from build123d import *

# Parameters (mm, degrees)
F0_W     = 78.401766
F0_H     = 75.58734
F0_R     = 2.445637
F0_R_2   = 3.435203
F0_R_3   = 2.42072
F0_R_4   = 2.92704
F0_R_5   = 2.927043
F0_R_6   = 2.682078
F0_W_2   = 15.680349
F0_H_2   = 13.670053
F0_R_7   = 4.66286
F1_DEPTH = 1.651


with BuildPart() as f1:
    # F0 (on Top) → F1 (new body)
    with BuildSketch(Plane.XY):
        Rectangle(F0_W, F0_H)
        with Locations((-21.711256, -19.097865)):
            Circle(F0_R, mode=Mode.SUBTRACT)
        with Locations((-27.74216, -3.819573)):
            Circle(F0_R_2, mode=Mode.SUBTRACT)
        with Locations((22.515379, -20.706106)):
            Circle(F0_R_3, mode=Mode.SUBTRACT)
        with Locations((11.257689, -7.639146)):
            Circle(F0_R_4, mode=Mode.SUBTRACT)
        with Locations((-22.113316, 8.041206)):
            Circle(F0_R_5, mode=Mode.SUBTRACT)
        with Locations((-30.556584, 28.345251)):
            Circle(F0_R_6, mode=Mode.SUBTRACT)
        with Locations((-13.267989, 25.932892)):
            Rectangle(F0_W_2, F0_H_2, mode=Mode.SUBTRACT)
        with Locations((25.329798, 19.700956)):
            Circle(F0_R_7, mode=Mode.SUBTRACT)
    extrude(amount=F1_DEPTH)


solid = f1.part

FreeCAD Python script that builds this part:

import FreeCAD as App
import Part
import Sketcher

V = App.Vector
Q = App.Units.Quantity

doc = App.newDocument("Part")
params = doc.addObject("Spreadsheet::Sheet", "Params")
for row, (alias, value) in enumerate([
    ("pad1_length", "0.065 in"),
], start=1):
    params.set(f"A{row}", alias)
    params.set(f"B{row}", "=" + value)
    params.setAlias(f"B{row}", alias)

body = doc.addObject("PartDesign::Body", "Body")

sketch1 = doc.addObject("Sketcher::SketchObject", "Sketch")
body.addObject(sketch1)
sketch1.AttachmentSupport = (doc.XY_Plane, [""])
sketch1.MapMode = "FlatFace"
sketch1.addGeometry([
    Part.LineSegment(V(-39.2, 37.8, 0), V(-39.2, -37.8, 0)),
    Part.LineSegment(V(-39.2, -37.8, 0), V(39.2, -37.8, 0)),
    Part.LineSegment(V(39.2, -37.8, 0), V(39.2, 37.8, 0)),
    Part.LineSegment(V(39.2, 37.8, 0), V(-39.2, 37.8, 0)),
    Part.Circle(V(-21.7, -19.1, 0), V(0, 0, 1), 2.4),
    Part.Circle(V(-27.7, -3.8, 0), V(0, 0, 1), 3.4),
    Part.Circle(V(22.5, -20.7, 0), V(0, 0, 1), 2.4),
    Part.Circle(V(11.3, -7.6, 0), V(0, 0, 1), 2.9),
    Part.Circle(V(-22.1, 8, 0), V(0, 0, 1), 2.9),
    Part.Circle(V(-30.6, 28.3, 0), V(0, 0, 1), 2.7),
    Part.LineSegment(V(-5.4, 19.1, 0), V(-21.1, 19.1, 0)),
    Part.LineSegment(V(-21.1, 19.1, 0), V(-21.1, 32.8, 0)),
    Part.LineSegment(V(-21.1, 32.8, 0), V(-5.4, 32.8, 0)),
    Part.LineSegment(V(-5.4, 32.8, 0), V(-5.4, 19.1, 0)),
    Part.Circle(V(25.3, 19.7, 0), V(0, 0, 1), 4.7),
], False)
sketch1.addConstraint([
    Sketcher.Constraint("Coincident", 0, 2, 1, 1),
    Sketcher.Constraint("Coincident", 1, 2, 2, 1),
    Sketcher.Constraint("Coincident", 2, 2, 3, 1),
    Sketcher.Constraint("Coincident", 3, 2, 0, 1),
    Sketcher.Constraint("Coincident", 10, 2, 11, 1),
    Sketcher.Constraint("Coincident", 11, 2, 12, 1),
    Sketcher.Constraint("Coincident", 12, 2, 13, 1),
    Sketcher.Constraint("Coincident", 13, 2, 10, 1),
    Sketcher.Constraint("Vertical", 0),
    Sketcher.Constraint("Horizontal", 1),
    Sketcher.Constraint("Vertical", 2),
    Sketcher.Constraint("Horizontal", 3),
    Sketcher.Constraint("Horizontal", 10),
    Sketcher.Constraint("Vertical", 11),
    Sketcher.Constraint("Horizontal", 12),
    Sketcher.Constraint("Vertical", 13),
    Sketcher.Constraint("Symmetric", 0, 2, 2, 2, -1, 1),
    Sketcher.Constraint("Diameter", 6, Q("4.84144 mm")),
    Sketcher.Constraint("Diameter", 7, Q("5.85408 mm")),
    Sketcher.Constraint("Diameter", 14, Q("9.32572 mm")),
    Sketcher.Constraint("Diameter", 4, Q("4.891274 mm")),
    Sketcher.Constraint("Diameter", 5, Q("6.870406 mm")),
    Sketcher.Constraint("Diameter", 8, Q("5.854086 mm")),
    Sketcher.Constraint("Diameter", 9, Q("5.364156 mm")),
    Sketcher.Constraint("DistanceX", 10, 2, 10, 1, Q("15.680349 mm")),
    Sketcher.Constraint("DistanceY", 0, 2, 0, 1, Q("75.58734 mm")),
    Sketcher.Constraint("DistanceX", -1, 1, 14, 3, Q("25.329798 mm")),
    Sketcher.Constraint("DistanceX", 8, 3, 2, 2, Q("61.314199 mm")),
    Sketcher.Constraint("DistanceX", 3, 2, 9, 3, Q("8.644299 mm")),
    Sketcher.Constraint("DistanceX", 8, 3, 12, 2, Q("16.685502 mm")),
    Sketcher.Constraint("DistanceX", 1, 1, 1, 2, Q("78.401766 mm")),
    Sketcher.Constraint("DistanceY", 11, 1, 11, 2, Q("13.670053 mm")),
    Sketcher.Constraint("DistanceX", 5, 3, -1, 1, Q("27.74216 mm")),
    Sketcher.Constraint("DistanceX", -1, 1, 6, 3, Q("22.515379 mm")),
    Sketcher.Constraint("DistanceX", -1, 1, 7, 3, Q("11.257689 mm")),
    Sketcher.Constraint("DistanceY", -1, 1, 9, 3, Q("28.345251 mm")),
    Sketcher.Constraint("DistanceY", -1, 1, 11, 2, Q("32.767919 mm")),
    Sketcher.Constraint("DistanceY", 4, 3, 5, 3, Q("15.278292 mm")),
    Sketcher.Constraint("DistanceY", 6, 3, 4, 3, Q("1.608241 mm")),
    Sketcher.Constraint("DistanceY", 6, 3, 7, 3, Q("13.06696 mm")),
    Sketcher.Constraint("DistanceY", 5, 3, 8, 3, Q("11.860779 mm")),
    Sketcher.Constraint("DistanceX", 8, 3, 4, 3, Q("0.40206 mm")),
    Sketcher.Constraint("DistanceY", 6, 3, 14, 3, Q("40.407062 mm")),
    Sketcher.Constraint("DistanceY", 8, 3, 10, 2, Q("11.05666 mm")),
])
pad1 = doc.addObject("PartDesign::Pad", "Pad")
body.addObject(pad1)
pad1.Profile = sketch1
pad1.setExpression("Length", "Params.pad1_length")

doc.recompute()
